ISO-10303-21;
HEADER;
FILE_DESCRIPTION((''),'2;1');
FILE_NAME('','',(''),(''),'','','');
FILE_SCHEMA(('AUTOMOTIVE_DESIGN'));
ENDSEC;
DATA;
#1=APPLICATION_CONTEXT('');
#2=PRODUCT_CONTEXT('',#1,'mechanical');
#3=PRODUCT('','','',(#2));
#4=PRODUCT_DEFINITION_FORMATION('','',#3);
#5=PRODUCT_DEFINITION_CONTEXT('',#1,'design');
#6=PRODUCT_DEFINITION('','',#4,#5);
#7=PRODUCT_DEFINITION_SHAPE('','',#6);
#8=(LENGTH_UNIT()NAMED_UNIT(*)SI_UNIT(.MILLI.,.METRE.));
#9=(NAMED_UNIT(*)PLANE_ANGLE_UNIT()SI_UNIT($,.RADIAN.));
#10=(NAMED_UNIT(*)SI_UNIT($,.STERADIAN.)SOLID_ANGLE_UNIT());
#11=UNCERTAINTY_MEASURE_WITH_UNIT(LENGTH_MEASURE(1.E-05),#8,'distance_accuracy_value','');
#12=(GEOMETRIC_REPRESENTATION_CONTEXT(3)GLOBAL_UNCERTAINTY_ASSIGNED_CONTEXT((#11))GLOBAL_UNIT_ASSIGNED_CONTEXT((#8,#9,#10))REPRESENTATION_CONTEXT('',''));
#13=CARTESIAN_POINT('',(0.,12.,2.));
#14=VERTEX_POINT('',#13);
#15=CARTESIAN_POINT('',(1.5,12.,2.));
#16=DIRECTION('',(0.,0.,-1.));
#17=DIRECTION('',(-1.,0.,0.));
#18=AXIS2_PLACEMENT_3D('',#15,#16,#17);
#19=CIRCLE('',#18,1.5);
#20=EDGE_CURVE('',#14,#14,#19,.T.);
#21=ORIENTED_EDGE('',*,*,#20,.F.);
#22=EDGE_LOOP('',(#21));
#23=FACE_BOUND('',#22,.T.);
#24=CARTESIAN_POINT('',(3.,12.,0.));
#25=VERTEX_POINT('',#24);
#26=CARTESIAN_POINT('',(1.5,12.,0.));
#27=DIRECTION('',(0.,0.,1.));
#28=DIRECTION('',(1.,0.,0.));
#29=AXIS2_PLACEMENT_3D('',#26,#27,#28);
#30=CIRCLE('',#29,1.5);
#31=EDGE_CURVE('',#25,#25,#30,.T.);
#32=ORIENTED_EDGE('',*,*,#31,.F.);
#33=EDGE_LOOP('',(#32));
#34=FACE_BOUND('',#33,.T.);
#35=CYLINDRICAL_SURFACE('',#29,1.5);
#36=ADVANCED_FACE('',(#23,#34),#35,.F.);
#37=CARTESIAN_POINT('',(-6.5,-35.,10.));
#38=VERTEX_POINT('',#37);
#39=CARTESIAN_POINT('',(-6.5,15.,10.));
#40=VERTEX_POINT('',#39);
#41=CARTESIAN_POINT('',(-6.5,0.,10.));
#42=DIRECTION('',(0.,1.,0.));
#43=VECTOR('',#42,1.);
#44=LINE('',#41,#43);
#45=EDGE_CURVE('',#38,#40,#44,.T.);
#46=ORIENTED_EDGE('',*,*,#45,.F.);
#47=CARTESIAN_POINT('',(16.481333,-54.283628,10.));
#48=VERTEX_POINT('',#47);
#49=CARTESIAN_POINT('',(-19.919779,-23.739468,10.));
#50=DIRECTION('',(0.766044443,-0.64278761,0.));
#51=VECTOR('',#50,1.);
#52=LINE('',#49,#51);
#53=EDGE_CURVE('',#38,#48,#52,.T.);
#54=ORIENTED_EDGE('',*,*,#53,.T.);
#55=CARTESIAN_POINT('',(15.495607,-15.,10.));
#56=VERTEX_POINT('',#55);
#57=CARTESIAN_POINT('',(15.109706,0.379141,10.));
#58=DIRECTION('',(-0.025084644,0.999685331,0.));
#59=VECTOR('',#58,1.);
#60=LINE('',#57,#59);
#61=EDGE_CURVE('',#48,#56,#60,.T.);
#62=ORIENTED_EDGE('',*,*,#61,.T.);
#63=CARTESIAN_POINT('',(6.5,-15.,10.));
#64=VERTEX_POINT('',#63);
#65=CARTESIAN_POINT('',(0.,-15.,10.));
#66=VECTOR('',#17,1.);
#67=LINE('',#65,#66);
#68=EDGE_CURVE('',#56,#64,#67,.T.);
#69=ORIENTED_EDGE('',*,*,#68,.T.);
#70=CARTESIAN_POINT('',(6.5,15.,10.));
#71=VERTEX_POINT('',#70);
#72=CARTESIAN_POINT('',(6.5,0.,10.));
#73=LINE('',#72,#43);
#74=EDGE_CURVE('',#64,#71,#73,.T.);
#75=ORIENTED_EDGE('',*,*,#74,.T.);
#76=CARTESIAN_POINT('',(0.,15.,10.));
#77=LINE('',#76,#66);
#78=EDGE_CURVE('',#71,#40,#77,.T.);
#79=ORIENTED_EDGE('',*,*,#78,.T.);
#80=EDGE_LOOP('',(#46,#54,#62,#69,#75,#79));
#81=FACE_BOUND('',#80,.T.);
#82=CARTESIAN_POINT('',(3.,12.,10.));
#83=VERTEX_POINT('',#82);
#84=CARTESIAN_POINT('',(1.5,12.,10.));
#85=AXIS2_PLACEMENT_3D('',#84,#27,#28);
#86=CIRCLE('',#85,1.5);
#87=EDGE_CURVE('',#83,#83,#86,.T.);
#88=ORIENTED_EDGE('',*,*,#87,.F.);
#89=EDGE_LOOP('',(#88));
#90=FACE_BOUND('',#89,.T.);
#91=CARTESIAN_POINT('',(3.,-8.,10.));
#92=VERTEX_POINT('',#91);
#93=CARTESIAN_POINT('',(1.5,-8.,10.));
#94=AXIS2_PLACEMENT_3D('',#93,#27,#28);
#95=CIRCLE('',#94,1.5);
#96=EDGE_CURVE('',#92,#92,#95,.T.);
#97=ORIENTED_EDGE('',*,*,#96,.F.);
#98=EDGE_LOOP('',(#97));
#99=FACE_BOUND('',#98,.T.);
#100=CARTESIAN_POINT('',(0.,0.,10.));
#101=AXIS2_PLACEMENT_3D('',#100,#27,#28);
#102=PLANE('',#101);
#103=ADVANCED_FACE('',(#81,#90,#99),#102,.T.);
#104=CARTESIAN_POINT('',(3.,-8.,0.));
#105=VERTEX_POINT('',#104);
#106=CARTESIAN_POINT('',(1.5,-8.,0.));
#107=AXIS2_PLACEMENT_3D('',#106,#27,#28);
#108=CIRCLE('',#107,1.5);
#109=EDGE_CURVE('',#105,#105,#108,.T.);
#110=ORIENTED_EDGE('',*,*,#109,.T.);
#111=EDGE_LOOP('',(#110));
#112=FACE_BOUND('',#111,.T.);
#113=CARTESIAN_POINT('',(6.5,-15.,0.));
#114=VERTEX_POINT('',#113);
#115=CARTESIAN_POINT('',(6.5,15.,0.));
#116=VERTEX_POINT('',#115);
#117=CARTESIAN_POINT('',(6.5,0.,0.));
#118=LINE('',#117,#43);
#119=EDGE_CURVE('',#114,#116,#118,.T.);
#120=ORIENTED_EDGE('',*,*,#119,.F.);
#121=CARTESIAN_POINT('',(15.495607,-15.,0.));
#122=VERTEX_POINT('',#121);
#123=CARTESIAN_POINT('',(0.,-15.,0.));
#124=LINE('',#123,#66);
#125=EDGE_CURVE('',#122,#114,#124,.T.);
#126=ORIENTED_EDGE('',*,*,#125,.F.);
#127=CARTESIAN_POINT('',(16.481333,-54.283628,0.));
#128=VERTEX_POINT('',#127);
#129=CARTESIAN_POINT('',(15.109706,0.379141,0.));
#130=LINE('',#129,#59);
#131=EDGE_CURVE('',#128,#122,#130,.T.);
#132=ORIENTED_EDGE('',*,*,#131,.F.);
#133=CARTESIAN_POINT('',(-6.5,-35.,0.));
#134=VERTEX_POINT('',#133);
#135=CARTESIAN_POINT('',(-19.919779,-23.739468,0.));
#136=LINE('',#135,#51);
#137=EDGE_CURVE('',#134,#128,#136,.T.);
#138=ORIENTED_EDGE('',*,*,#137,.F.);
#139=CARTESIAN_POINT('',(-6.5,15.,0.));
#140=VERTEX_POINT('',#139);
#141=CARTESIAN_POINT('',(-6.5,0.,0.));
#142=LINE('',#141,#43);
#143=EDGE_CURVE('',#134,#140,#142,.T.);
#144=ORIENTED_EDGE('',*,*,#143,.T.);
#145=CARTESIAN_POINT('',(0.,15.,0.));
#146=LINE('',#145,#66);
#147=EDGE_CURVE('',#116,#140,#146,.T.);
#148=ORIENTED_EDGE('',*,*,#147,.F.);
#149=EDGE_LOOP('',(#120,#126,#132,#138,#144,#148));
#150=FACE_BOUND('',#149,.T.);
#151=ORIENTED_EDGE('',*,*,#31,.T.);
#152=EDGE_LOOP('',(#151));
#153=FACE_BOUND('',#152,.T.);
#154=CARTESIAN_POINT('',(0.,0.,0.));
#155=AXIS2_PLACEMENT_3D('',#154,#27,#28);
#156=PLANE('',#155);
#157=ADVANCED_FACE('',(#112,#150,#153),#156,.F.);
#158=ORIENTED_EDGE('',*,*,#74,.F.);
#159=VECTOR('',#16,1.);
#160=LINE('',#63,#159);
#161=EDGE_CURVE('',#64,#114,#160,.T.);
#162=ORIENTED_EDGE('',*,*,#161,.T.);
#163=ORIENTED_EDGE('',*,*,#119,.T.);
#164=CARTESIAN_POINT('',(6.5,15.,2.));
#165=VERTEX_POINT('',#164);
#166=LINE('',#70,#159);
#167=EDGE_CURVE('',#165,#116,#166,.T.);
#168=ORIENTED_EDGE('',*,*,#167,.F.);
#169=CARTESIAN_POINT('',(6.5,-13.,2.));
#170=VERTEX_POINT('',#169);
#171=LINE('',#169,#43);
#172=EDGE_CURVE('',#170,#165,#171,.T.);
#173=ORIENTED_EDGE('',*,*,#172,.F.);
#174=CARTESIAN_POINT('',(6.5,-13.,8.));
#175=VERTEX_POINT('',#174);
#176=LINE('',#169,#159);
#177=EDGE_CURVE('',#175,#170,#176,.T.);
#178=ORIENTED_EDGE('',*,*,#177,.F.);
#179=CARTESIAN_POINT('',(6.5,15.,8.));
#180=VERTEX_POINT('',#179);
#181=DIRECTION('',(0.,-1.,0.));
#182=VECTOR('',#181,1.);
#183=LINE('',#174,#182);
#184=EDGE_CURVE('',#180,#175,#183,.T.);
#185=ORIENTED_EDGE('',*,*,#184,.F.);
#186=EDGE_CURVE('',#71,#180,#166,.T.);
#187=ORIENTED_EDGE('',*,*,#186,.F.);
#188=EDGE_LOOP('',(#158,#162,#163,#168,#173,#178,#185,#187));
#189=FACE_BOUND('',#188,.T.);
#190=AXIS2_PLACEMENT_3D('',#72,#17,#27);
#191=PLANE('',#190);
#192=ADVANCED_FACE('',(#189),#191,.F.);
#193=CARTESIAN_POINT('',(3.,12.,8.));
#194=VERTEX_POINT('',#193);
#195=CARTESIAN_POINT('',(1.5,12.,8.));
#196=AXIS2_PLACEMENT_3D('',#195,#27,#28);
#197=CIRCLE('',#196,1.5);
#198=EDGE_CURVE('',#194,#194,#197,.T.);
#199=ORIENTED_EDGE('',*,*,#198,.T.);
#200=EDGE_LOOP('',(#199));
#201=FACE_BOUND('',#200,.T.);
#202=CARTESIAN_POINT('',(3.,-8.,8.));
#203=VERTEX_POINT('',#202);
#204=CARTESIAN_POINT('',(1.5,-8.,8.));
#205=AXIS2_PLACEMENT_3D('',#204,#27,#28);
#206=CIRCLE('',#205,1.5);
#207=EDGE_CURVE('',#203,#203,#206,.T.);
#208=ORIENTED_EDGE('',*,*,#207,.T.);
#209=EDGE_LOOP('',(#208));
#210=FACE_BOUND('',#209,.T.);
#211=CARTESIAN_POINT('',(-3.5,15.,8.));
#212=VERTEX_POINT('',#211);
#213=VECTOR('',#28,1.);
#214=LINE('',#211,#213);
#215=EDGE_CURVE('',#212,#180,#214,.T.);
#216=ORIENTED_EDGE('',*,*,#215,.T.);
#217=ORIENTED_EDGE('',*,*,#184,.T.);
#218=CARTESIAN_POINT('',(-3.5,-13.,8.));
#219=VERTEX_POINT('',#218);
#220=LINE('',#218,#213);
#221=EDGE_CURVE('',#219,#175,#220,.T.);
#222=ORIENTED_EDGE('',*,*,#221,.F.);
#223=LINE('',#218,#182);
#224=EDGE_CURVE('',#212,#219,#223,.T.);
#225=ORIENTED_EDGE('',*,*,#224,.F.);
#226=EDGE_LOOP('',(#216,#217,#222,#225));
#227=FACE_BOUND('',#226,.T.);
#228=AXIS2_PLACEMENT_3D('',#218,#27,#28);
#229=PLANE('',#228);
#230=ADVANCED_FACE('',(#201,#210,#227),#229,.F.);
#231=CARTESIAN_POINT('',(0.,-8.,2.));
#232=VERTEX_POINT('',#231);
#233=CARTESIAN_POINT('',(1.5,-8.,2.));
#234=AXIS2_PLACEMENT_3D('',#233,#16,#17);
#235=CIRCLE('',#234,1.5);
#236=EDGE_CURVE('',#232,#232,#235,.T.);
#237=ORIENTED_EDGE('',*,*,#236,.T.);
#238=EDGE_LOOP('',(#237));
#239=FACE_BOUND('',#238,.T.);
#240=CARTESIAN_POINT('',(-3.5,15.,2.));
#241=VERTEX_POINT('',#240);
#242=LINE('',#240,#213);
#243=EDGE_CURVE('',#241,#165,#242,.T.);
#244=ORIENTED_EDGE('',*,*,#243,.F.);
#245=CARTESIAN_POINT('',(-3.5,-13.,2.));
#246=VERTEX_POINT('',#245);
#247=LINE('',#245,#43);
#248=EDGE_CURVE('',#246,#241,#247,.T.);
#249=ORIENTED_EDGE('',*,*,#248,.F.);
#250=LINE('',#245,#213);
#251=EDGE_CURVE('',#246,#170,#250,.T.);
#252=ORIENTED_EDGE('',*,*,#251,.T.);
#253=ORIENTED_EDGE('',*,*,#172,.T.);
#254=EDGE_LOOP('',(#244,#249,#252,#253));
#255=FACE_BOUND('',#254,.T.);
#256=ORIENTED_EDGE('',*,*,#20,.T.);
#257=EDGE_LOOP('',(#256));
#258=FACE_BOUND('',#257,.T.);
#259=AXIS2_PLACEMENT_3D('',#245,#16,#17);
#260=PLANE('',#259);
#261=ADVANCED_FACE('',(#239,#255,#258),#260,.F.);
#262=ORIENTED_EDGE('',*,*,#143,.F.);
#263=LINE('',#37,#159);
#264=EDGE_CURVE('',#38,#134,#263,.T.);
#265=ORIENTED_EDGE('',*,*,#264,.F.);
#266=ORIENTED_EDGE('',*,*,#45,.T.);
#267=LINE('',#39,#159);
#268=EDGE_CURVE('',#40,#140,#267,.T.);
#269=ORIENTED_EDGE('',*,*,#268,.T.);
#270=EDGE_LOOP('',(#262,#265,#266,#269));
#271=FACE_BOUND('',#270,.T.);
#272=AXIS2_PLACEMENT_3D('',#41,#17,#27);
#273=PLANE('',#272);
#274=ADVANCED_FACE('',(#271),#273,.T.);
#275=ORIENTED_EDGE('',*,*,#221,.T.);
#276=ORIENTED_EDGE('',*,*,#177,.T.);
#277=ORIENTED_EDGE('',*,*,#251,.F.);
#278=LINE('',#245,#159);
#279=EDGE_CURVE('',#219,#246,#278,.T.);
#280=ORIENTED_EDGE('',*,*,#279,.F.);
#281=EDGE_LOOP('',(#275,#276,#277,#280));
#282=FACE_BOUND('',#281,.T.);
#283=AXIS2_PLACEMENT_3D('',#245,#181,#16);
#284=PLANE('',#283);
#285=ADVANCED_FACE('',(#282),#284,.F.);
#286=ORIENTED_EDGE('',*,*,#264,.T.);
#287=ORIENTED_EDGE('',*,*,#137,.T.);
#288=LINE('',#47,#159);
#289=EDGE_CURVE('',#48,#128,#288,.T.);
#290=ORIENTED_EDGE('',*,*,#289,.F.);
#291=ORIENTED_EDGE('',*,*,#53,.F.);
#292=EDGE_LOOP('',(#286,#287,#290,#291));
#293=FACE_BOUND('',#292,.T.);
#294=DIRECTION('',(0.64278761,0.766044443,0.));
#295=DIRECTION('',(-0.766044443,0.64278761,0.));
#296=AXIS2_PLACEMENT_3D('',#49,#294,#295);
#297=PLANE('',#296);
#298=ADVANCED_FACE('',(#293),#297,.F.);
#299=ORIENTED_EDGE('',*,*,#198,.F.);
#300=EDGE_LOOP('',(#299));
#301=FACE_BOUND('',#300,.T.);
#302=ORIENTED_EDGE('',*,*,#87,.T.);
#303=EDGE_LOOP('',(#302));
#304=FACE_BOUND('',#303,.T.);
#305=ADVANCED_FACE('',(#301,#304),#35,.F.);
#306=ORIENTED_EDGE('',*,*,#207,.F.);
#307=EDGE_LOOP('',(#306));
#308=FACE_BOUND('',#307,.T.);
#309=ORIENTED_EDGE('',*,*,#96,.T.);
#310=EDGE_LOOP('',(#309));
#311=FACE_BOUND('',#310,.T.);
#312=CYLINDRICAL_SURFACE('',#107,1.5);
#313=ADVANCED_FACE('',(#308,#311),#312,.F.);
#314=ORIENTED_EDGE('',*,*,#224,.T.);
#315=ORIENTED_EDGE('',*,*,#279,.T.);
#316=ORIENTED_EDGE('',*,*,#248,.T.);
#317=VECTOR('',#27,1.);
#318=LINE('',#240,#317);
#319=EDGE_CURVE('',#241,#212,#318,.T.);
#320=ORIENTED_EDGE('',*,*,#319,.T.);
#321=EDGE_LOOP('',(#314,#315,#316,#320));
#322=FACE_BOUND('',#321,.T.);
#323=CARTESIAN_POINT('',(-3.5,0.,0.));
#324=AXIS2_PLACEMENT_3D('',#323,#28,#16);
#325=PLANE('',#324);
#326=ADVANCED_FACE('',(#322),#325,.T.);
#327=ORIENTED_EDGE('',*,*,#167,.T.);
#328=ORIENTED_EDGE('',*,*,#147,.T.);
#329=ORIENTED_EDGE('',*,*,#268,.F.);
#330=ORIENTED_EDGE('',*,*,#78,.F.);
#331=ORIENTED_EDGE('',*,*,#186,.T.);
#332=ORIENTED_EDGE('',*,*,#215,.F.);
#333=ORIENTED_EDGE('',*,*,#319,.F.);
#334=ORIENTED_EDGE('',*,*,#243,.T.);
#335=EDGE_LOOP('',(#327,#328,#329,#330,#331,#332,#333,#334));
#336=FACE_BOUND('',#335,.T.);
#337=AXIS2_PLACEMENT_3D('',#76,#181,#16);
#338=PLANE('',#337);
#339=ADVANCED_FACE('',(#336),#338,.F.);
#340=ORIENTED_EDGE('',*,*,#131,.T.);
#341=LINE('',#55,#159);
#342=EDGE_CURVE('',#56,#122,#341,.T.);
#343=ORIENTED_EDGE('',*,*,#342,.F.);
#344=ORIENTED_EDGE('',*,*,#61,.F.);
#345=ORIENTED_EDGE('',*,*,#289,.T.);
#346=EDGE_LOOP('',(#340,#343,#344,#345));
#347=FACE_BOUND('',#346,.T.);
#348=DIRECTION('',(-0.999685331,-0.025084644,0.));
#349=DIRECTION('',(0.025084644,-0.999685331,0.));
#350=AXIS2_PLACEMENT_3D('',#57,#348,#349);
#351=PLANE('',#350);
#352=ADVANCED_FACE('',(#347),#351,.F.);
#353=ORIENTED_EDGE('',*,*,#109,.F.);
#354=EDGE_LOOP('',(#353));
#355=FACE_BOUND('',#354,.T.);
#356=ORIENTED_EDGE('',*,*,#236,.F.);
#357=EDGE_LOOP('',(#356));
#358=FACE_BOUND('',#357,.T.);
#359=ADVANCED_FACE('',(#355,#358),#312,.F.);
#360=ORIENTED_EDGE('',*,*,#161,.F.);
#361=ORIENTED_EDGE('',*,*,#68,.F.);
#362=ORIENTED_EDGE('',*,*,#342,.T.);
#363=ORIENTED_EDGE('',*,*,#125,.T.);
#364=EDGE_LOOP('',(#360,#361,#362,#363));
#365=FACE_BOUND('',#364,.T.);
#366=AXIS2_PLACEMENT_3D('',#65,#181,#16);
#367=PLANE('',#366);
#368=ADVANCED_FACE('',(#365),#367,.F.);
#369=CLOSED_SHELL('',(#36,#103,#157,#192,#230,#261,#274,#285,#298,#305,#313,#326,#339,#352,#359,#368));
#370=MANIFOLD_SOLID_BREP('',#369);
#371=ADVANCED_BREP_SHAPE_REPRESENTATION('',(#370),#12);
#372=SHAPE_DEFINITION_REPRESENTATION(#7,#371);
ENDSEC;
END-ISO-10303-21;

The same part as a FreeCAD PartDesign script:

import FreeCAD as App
import Part
import Sketcher

V = App.Vector
Q = App.Units.Quantity


def add_polygon(sketch, points):
    """Adds a closed chain of lines whose ends are joined by coincident constraints."""
    first, n = sketch.GeometryCount, len(points)
    for a, b in zip(points, points[1:] + points[:1]):
        sketch.addGeometry(Part.LineSegment(App.Vector(*a, 0), App.Vector(*b, 0)), False)
    for i in range(n):
        sketch.addConstraint(Sketcher.Constraint("Coincident", first + i, 2, first + (i + 1) % n, 1))

doc = App.newDocument("Part")
params = doc.addObject("Spreadsheet::Sheet", "Params")
for row, (alias, value) in enumerate([
    ("sketch1_width", "13 mm"),
    ("sketch1_height", "50 mm"),
    ("sketch1_height2", "30 mm"),
    ("sketch1_length", "30 mm"),
    ("pad1_length", "10 mm"),
    ("sketch2_width", "28 mm"),
    ("sketch2_height", "6 mm"),
    ("pocket1_length", "10 mm"),
    ("sketch3_diameter", "3 mm"),
    ("sketch4_diameter", "3 mm"),
], start=1):
    params.set(f"A{row}", alias)
    params.set(f"B{row}", "=" + value)
    params.setAlias(f"B{row}", alias)

body = doc.addObject("PartDesign::Body", "Body")

sketch1 = body.newObject("Sketcher::SketchObject", "Sketch")
sketch1.AttachmentSupport = (doc.getObject("XY_Plane"), [""])
sketch1.MapMode = "FlatFace"
add_polygon(sketch1, [(-6.5, 15), (-6.5, -35), (16.481333, -54.283628), (15.495607, -15), (6.5, -15), (6.5, 15)])
sketch1.addConstraint(Sketcher.Constraint("Vertical", 0))
sketch1.addConstraint(Sketcher.Constraint("Horizontal", 3))
sketch1.addConstraint(Sketcher.Constraint("Vertical", 4))
sketch1.addConstraint(Sketcher.Constraint("Horizontal", 5))
sketch1.addConstraint(Sketcher.Constraint("Symmetric", 3, 2, 5, 2, -1, 1))
sketch1.addConstraint(Sketcher.Constraint("DistanceX", 5, 2, 5, 1, 13.0))
sketch1.addConstraint(Sketcher.Constraint("DistanceY", 0, 2, 0, 1, 50.0))
sketch1.addConstraint(Sketcher.Constraint("DistanceY", 4, 1, 4, 2, 30.0))
sketch1.addConstraint(Sketcher.Constraint("Angle", 1, Q("-40 deg")))
sketch1.addConstraint(Sketcher.Constraint("Distance", 1, 30.0))
sketch1.addConstraint(Sketcher.Constraint("DistanceX", 3, 2, 3, 1, 8.995607))
sketch1.setExpression("Constraints[11]", "Params.sketch1_width")
sketch1.setExpression("Constraints[12]", "Params.sketch1_height")
sketch1.setExpression("Constraints[13]", "Params.sketch1_height2")
sketch1.setExpression("Constraints[15]", "Params.sketch1_length")
pad1 = body.newObject("PartDesign::Pad", "Pad")
pad1.Profile = sketch1
pad1.setExpression("Length", "Params.pad1_length")

sketch2 = body.newObject("Sketcher::SketchObject", "Sketch001")
sketch2.AttachmentSupport = (doc.getObject("YZ_Plane"), [""])
sketch2.MapMode = "FlatFace"
sketch2.AttachmentOffset = App.Placement(V(0, 0, 6.5), App.Rotation())
add_polygon(sketch2, [(15, 8), (-13, 8), (-13, 2), (15, 2)])
sketch2.addConstraint(Sketcher.Constraint("Horizontal", 0))
sketch2.addConstraint(Sketcher.Constraint("Vertical", 1))
sketch2.addConstraint(Sketcher.Constraint("Horizontal", 2))
sketch2.addConstraint(Sketcher.Constraint("Vertical", 3))
sketch2.addConstraint(Sketcher.Constraint("DistanceX", 0, 2, 0, 1, 28.0))
sketch2.addConstraint(Sketcher.Constraint("DistanceY", 1, 2, 1, 1, 6.0))
sketch2.addConstraint(Sketcher.Constraint("DistanceX", 0, 2, -1, 1, 13.0))
sketch2.addConstraint(Sketcher.Constraint("DistanceY", -1, 1, 0, 2, 8.0))
sketch2.setExpression("Constraints[8]", "Params.sketch2_width")
sketch2.setExpression("Constraints[9]", "Params.sketch2_height")
pocket1 = body.newObject("PartDesign::Pocket", "Pocket")
pocket1.Profile = sketch2
pocket1.setExpression("Length", "Params.pocket1_length")

sketch3 = body.newObject("Sketcher::SketchObject", "Sketch002")
sketch3.AttachmentSupport = (doc.getObject("XY_Plane"), [""])
sketch3.MapMode = "FlatFace"
sketch3.AttachmentOffset = App.Placement(V(0, 0, 10), App.Rotation())
sketch3.addGeometry(Part.Circle(V(1.5, 12, 0), V(0, 0, 1), 1.5), False)
sketch3.addConstraint(Sketcher.Constraint("Diameter", 0, 3.0))
sketch3.addConstraint(Sketcher.Constraint("DistanceY", -1, 1, 0, 3, 12.0))
sketch3.addConstraint(Sketcher.Constraint("DistanceX", -1, 1, 0, 3, 1.5))
sketch3.setExpression("Constraints[0]", "Params.sketch3_diameter")
pocket2 = body.newObject("PartDesign::Pocket", "Pocket001")
pocket2.Profile = sketch3
pocket2.Type = "ThroughAll"

sketch4 = body.newObject("Sketcher::SketchObject", "Sketch003")
sketch4.AttachmentSupport = (doc.getObject("XY_Plane"), [""])
sketch4.MapMode = "FlatFace"
sketch4.AttachmentOffset = App.Placement(V(0, 0, 10), App.Rotation())
sketch4.addGeometry(Part.Circle(V(1.5, -8, 0), V(0, 0, 1), 1.5), False)
sketch4.addConstraint(Sketcher.Constraint("Diameter", 0, 3.0))
sketch4.addConstraint(Sketcher.Constraint("DistanceY", 0, 3, -1, 1, 8.0))
sketch4.addConstraint(Sketcher.Constraint("DistanceX", -1, 1, 0, 3, 1.5))
sketch4.setExpression("Constraints[0]", "Params.sketch4_diameter")
pocket3 = body.newObject("PartDesign::Pocket", "Pocket002")
pocket3.Profile = sketch4
pocket3.Type = "ThroughAll"

doc.recompute()
